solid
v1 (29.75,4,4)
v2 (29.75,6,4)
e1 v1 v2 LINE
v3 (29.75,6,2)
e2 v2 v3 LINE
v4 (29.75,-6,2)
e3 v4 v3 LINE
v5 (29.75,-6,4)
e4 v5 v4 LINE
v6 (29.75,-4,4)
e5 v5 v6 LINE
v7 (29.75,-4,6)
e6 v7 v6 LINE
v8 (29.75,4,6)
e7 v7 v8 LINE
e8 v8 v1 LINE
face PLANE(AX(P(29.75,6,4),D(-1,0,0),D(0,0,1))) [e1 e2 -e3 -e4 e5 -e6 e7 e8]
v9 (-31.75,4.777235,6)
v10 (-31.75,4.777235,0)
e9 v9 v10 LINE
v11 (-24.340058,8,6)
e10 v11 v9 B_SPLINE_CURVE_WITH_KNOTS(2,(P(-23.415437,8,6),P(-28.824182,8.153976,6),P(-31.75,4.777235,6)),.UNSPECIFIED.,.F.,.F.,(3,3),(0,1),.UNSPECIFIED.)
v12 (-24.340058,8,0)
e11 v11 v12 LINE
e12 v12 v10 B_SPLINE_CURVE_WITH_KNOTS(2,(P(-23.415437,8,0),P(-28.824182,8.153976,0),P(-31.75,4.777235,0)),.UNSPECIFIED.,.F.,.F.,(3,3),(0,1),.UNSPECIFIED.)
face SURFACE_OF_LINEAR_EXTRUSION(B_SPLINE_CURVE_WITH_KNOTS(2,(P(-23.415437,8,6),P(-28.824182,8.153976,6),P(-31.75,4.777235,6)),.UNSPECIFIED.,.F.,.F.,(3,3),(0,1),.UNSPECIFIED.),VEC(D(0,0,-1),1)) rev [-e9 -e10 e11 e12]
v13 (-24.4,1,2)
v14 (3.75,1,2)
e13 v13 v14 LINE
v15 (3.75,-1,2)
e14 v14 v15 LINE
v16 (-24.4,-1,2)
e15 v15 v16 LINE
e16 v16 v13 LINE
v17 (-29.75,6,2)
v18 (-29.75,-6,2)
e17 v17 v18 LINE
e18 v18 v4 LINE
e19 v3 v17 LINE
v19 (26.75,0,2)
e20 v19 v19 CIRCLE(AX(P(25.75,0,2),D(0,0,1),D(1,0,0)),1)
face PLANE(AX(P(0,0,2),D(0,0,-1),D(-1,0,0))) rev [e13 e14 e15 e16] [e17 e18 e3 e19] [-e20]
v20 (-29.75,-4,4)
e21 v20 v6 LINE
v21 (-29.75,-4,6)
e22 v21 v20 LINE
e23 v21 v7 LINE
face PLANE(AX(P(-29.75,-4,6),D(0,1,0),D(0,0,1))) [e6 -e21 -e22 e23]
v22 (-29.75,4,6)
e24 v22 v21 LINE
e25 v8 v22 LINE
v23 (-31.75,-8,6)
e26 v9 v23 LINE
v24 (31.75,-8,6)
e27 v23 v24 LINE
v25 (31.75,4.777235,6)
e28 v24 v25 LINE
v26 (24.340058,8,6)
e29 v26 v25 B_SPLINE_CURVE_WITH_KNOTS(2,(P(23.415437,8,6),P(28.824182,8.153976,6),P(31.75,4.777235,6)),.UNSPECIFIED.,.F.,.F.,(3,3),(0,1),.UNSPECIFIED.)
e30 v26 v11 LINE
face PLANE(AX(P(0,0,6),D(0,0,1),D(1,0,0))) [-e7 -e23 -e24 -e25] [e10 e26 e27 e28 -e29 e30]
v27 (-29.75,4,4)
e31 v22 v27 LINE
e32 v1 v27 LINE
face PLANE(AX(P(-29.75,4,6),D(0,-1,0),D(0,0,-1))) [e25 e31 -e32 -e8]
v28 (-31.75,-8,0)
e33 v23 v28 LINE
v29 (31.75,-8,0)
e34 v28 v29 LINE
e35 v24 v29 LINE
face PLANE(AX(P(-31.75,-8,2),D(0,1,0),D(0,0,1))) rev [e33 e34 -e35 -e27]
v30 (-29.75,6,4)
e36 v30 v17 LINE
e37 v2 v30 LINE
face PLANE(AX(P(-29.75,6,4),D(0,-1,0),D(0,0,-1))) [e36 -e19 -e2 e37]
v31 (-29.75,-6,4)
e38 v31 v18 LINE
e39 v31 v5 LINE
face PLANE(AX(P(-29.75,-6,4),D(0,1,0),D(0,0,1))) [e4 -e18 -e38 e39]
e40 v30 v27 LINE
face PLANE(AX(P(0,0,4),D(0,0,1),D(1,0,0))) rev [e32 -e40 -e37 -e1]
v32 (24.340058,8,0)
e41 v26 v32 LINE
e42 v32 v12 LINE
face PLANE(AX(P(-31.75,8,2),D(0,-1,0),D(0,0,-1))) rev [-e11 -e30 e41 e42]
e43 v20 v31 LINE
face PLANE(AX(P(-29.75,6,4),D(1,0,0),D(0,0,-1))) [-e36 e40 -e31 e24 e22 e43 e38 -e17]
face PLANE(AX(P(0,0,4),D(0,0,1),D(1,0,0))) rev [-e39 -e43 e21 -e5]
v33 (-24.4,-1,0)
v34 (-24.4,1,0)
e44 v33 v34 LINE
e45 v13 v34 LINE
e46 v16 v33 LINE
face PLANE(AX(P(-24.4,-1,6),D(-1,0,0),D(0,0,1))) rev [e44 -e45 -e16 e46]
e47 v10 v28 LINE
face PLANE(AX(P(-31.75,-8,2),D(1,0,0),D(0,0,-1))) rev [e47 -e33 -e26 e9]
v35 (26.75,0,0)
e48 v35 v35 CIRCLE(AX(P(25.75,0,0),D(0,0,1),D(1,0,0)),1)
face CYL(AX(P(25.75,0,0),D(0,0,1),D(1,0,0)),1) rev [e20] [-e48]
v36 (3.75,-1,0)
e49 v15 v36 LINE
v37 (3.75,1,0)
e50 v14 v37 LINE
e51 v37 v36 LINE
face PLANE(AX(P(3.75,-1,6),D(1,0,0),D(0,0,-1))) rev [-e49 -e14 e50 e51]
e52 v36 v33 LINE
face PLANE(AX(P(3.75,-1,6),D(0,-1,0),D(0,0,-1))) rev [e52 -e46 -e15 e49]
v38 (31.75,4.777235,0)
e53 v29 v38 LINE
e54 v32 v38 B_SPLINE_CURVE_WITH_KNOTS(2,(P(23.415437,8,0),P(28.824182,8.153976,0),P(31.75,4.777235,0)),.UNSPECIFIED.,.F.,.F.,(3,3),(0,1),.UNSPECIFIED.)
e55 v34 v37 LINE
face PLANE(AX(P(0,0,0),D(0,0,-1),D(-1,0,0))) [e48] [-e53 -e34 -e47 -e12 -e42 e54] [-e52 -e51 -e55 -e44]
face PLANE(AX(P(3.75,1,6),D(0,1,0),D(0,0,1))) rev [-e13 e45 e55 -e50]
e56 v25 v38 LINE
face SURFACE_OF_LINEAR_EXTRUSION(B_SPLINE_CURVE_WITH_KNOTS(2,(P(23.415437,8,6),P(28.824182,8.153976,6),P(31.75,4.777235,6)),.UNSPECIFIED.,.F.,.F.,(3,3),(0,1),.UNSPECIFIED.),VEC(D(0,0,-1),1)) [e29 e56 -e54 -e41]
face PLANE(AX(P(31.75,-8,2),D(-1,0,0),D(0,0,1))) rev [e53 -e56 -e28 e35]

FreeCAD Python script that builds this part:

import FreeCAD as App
import Part
import Sketcher
from FreeCAD import Vector

doc = App.newDocument("Part")
body = doc.addObject("PartDesign::Body", "Body")

sketch1 = body.newObject("Sketcher::SketchObject", "Sketch")
sketch1.AttachmentSupport = (doc.getObject("XY_Plane"), [""])
sketch1.MapMode = "FlatFace"
sketch1.addGeometry([
    Part.LineSegment(Vector(-32, 8, 0), Vector(-32, -8, 0)),
    Part.LineSegment(Vector(-32, -8, 0), Vector(32, -8, 0)),
    Part.LineSegment(Vector(32, -8, 0), Vector(32, 8, 0)),
    Part.LineSegment(Vector(32, 8, 0), Vector(-32, 8, 0)),
], False)
sketch1.addConstraint([
    Sketcher.Constraint("Coincident", 0, 2, 1, 1),
    Sketcher.Constraint("Coincident", 1, 2, 2, 1),
    Sketcher.Constraint("Coincident", 2, 2, 3, 1),
    Sketcher.Constraint("Coincident", 3, 2, 0, 1),
    Sketcher.Constraint("Vertical", 0),
    Sketcher.Constraint("Horizontal", 1),
    Sketcher.Constraint("Vertical", 2),
    Sketcher.Constraint("Horizontal", 3),
    Sketcher.Constraint("Symmetric", 0, 2, 2, 2, -1, 1),
    Sketcher.Constraint("DistanceY", 0, 2, 0, 1, 16.0),
    Sketcher.Constraint("DistanceX", 1, 1, 1, 2, 63.5),
])
pad1 = body.newObject("PartDesign::Pad", "Pad")
pad1.Profile = sketch1
pad1.Length = 2

sketch2 = body.newObject("Sketcher::SketchObject", "Sketch001")
sketch2.AttachmentSupport = (doc.getObject("XY_Plane"), [""])
sketch2.MapMode = "FlatFace"
sketch2.AttachmentOffset = App.Placement(Vector(0, 0, 2), App.Rotation())
sketch2.addGeometry([
    Part.LineSegment(Vector(-32, 8, 0), Vector(-32, -8, 0)),
    Part.LineSegment(Vector(-32, -8, 0), Vector(32, -8, 0)),
    Part.LineSegment(Vector(32, -8, 0), Vector(32, 8, 0)),
    Part.LineSegment(Vector(32, 8, 0), Vector(-32, 8, 0)),
    Part.LineSegment(Vector(30, -6, 0), Vector(-30, -6, 0)),
    Part.LineSegment(Vector(-30, -6, 0), Vector(-30, 6, 0)),
    Part.LineSegment(Vector(-30, 6, 0), Vector(30, 6, 0)),
    Part.LineSegment(Vector(30, 6, 0), Vector(30, -6, 0)),
], False)
sketch2.addConstraint([
    Sketcher.Constraint("Coincident", 0, 2, 1, 1),
    Sketcher.Constraint("Coincident", 1, 2, 2, 1),
    Sketcher.Constraint("Coincident", 2, 2, 3, 1),
    Sketcher.Constraint("Coincident", 3, 2, 0, 1),
    Sketcher.Constraint("Coincident", 4, 2, 5, 1),
    Sketcher.Constraint("Coincident", 5, 2, 6, 1),
    Sketcher.Constraint("Coincident", 6, 2, 7, 1),
    Sketcher.Constraint("Coincident", 7, 2, 4, 1),
    Sketcher.Constraint("Vertical", 0),
    Sketcher.Constraint("Horizontal", 1),
    Sketcher.Constraint("Vertical", 2),
    Sketcher.Constraint("Horizontal", 3),
    Sketcher.Constraint("Horizontal", 4),
    Sketcher.Constraint("Vertical", 5),
    Sketcher.Constraint("Horizontal", 6),
    Sketcher.Constraint("Vertical", 7),
    Sketcher.Constraint("Symmetric", 0, 2, 2, 2, -1, 1),
    Sketcher.Constraint("Symmetric", 4, 2, 6, 2, -1, 1),
    Sketcher.Constraint("DistanceY", 0, 2, 0, 1, 16.0),
    Sketcher.Constraint("DistanceY", 5, 1, 5, 2, 12.0),
    Sketcher.Constraint("DistanceX", 1, 1, 1, 2, 63.5),
    Sketcher.Constraint("DistanceX", 4, 2, 4, 1, 59.5),
])
pad2 = body.newObject("PartDesign::Pad", "Pad001")
pad2.Profile = sketch2
pad2.Length = 2

sketch3 = body.newObject("Sketcher::SketchObject", "Sketch002")
sketch3.AttachmentSupport = (doc.getObject("XY_Plane"), [""])
sketch3.MapMode = "FlatFace"
sketch3.AttachmentOffset = App.Placement(Vector(0, 0, 4), App.Rotation())
sketch3.addGeometry([
    Part.LineSegment(Vector(-32, 8, 0), Vector(-32, -8, 0)),
    Part.LineSegment(Vector(-32, -8, 0), Vector(32, -8, 0)),
    Part.LineSegment(Vector(32, -8, 0), Vector(32, 8, 0)),
    Part.LineSegment(Vector(32, 8, 0), Vector(-32, 8, 0)),
    Part.LineSegment(Vector(30, -4, 0), Vector(-30, -4, 0)),
    Part.LineSegment(Vector(-30, -4, 0), Vector(-30, 4, 0)),
    Part.LineSegment(Vector(-30, 4, 0), Vector(30, 4, 0)),
    Part.LineSegment(Vector(30, 4, 0), Vector(30, -4, 0)),
], False)
sketch3.addConstraint([
    Sketcher.Constraint("Coincident", 0, 2, 1, 1),
    Sketcher.Constraint("Coincident", 1, 2, 2, 1),
    Sketcher.Constraint("Coincident", 2, 2, 3, 1),
    Sketcher.Constraint("Coincident", 3, 2, 0, 1),
    Sketcher.Constraint("Coincident", 4, 2, 5, 1),
    Sketcher.Constraint("Coincident", 5, 2, 6, 1),
    Sketcher.Constraint("Coincident", 6, 2, 7, 1),
    Sketcher.Constraint("Coincident", 7, 2, 4, 1),
    Sketcher.Constraint("Vertical", 0),
    Sketcher.Constraint("Horizontal", 1),
    Sketcher.Constraint("Vertical", 2),
    Sketcher.Constraint("Horizontal", 3),
    Sketcher.Constraint("Horizontal", 4),
    Sketcher.Constraint("Vertical", 5),
    Sketcher.Constraint("Horizontal", 6),
    Sketcher.Constraint("Vertical", 7),
    Sketcher.Constraint("Symmetric", 0, 2, 2, 2, -1, 1),
    Sketcher.Constraint("Symmetric", 4, 2, 6, 2, -1, 1),
    Sketcher.Constraint("DistanceY", 0, 2, 0, 1, 16.0),
    Sketcher.Constraint("DistanceY", 5, 1, 5, 2, 8.0),
    Sketcher.Constraint("DistanceX", 1, 1, 1, 2, 63.5),
    Sketcher.Constraint("DistanceX", 4, 2, 4, 1, 59.5),
])
pad3 = body.newObject("PartDesign::Pad", "Pad002")
pad3.Profile = sketch3
pad3.Length = 2

sketch4 = body.newObject("Sketcher::SketchObject", "Sketch003")
sketch4.AttachmentSupport = (doc.getObject("XY_Plane"), [""])
sketch4.MapMode = "FlatFace"
sketch4.AttachmentOffset = App.Placement(Vector(0, 0, 2), App.Rotation())
sketch4.addGeometry(Part.Circle(Vector(25.8, 0, 0), Vector(0, 0, 1), 1), False)
sketch4.addConstraint([
    Sketcher.Constraint("PointOnObject", 0, 3, -1),
    Sketcher.Constraint("Diameter", 0, 2.0),
    Sketcher.Constraint("DistanceX", -1, 1, 0, 3, 25.75),
])
pocket1 = body.newObject("PartDesign::Pocket", "Pocket")
pocket1.Profile = sketch4
pocket1.Type = "ThroughAll"

sketch5 = body.newObject("Sketcher::SketchObject", "Sketch004")
sketch5.AttachmentSupport = (doc.getObject("XY_Plane"), [""])
sketch5.MapMode = "FlatFace"
sketch5.addGeometry([
    Part.LineSegment(Vector(3.8, 1, 0), Vector(3.8, -1, 0)),
    Part.LineSegment(Vector(3.8, -1, 0), Vector(-24.4, -1, 0)),
    Part.LineSegment(Vector(-24.4, -1, 0), Vector(-24.4, 1, 0)),
    Part.LineSegment(Vector(-24.4, 1, 0), Vector(3.8, 1, 0)),
], False)
sketch5.addConstraint([
    Sketcher.Constraint("Coincident", 0, 2, 1, 1),
    Sketcher.Constraint("Coincident", 1, 2, 2, 1),
    Sketcher.Constraint("Coincident", 2, 2, 3, 1),
    Sketcher.Constraint("Coincident", 3, 2, 0, 1),
    Sketcher.Constraint("Vertical", 0),
    Sketcher.Constraint("Horizontal", 1),
    Sketcher.Constraint("Vertical", 2),
    Sketcher.Constraint("Horizontal", 3),
    Sketcher.Constraint("DistanceY", 0, 2, 0, 1, 2.0),
    Sketcher.Constraint("DistanceY", 0, 2, -1, 1, 1.0),
    Sketcher.Constraint("DistanceX", 1, 2, 1, 1, 28.15),
    Sketcher.Constraint("DistanceX", 1, 2, -1, 1, 24.4),
])
pocket2 = body.newObject("PartDesign::Pocket", "Pocket001")
pocket2.Profile = sketch5
pocket2.Type = "ThroughAll"
pocket2.Reversed = True

sketch6 = body.newObject("Sketcher::SketchObject", "Sketch005")
sketch6.AttachmentSupport = (doc.getObject("XY_Plane"), [""])
sketch6.MapMode = "FlatFace"
sketch6.addGeometry([
    Part.BSplineCurve([Vector(-24.340058, 8, 0), Vector(-29.079374, 7.859454, 0), Vector(-31.75, 4.777235, 0)], [3, 3], [0.087220719, 1], False, 2, [1, 1, 1], False),
    Part.LineSegment(Vector(-31.75, 4.777235, 0), Vector(-31.75, 8, 0)),
    Part.LineSegment(Vector(-31.75, 8, 0), Vector(-24.340058, 8, 0)),
], False)
sketch6.addConstraint([
    Sketcher.Constraint("Block", 0),
    Sketcher.Constraint("Coincident", 0, 2, 1, 1),
    Sketcher.Constraint("Coincident", 1, 2, 2, 1),
    Sketcher.Constraint("Coincident", 2, 2, 0, 1),
    Sketcher.Constraint("Vertical", 1),
    Sketcher.Constraint("Horizontal", 2),
])
pocket3 = body.newObject("PartDesign::Pocket", "Pocket002")
pocket3.Profile = sketch6
pocket3.Type = "ThroughAll"
pocket3.Reversed = True
doc.recompute()

mirrored = body.newObject("PartDesign::Mirrored", "Mirrored")
mirrored.Originals = [pocket3]
mirrored.MirrorPlane = (doc.getObject("YZ_Plane"), [""])
body.Tip = mirrored

doc.recompute()
